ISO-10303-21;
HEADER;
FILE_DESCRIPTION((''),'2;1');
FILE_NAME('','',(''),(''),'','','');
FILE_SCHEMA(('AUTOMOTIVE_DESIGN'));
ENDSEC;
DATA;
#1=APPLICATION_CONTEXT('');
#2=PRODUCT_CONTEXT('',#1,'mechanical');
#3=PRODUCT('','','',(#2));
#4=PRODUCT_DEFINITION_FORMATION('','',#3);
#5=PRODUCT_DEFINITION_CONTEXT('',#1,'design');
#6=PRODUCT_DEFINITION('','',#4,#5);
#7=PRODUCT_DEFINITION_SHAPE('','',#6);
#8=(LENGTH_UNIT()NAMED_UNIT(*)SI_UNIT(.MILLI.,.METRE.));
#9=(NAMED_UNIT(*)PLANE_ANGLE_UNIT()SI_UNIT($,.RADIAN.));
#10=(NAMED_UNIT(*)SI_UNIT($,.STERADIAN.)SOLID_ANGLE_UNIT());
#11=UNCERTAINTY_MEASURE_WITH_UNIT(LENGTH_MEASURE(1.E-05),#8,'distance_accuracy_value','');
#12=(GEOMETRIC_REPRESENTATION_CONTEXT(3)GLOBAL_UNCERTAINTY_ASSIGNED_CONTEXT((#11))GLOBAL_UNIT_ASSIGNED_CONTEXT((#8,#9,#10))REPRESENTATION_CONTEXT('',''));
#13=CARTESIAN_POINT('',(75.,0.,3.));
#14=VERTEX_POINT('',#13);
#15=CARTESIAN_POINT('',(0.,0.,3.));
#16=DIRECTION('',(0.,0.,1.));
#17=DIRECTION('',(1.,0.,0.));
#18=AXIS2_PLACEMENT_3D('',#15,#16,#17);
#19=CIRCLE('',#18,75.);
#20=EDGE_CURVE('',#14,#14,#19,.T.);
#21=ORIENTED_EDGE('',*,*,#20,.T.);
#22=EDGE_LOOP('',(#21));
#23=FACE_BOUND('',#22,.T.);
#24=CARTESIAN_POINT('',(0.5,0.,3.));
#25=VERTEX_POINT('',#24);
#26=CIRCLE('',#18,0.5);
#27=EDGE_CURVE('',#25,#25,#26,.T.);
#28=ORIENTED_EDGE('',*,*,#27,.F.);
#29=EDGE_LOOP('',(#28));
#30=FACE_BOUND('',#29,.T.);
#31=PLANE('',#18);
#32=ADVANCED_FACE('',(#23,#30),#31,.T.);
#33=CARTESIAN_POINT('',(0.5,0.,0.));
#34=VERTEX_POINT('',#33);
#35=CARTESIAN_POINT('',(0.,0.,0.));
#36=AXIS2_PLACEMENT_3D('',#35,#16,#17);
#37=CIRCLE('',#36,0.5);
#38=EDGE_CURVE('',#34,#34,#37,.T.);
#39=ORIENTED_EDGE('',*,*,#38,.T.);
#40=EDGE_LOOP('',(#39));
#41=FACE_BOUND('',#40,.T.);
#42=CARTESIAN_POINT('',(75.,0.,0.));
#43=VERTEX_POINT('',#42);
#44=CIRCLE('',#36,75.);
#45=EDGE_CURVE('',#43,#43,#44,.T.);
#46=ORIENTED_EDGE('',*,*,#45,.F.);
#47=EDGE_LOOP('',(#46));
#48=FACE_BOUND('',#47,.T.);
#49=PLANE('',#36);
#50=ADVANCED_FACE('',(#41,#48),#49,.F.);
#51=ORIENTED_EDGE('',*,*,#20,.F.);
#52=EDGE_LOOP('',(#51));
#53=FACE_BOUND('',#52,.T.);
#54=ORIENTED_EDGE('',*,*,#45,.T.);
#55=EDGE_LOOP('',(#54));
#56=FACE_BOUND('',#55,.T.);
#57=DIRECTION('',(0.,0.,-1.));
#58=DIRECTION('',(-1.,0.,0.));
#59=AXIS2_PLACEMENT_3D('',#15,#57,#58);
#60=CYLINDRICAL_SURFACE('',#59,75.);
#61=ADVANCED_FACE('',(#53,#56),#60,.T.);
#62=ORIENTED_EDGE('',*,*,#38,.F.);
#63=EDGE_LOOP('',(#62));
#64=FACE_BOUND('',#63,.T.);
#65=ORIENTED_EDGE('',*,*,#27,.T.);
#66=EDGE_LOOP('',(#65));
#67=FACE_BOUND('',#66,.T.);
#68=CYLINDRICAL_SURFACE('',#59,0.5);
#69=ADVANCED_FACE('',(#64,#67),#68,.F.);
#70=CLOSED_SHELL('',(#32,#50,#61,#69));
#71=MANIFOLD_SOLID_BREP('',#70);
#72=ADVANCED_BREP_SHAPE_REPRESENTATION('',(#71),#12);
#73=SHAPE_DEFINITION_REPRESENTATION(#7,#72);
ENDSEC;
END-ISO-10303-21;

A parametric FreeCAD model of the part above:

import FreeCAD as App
import Part
import Sketcher
from FreeCAD import Vector
Q = App.Units.Quantity

doc = App.newDocument("Part")
params = doc.addObject("Spreadsheet::Sheet", "Params")
for row, (alias, value) in enumerate([
    ("sketch1_diameter", "150 mm"),
    ("sketch1_diameter2", "1 mm"),
    ("pad1_length", "3 mm"),
], start=1):
    params.set(f"A{row}", alias)
    params.set(f"B{row}", "=" + value)
    params.setAlias(f"B{row}", alias)

body = doc.addObject("PartDesign::Body", "Body")

# Sketch on XY plane
sketch1 = body.newObject("Sketcher::SketchObject", "Sketch")
sketch1.AttachmentSupport = (doc.getObject("XY_Plane"), [""])
sketch1.MapMode = "FlatFace"
sketch1.addGeometry(Part.Circle(Vector(0, 0, 0), Vector(0, 0, 1), 75), False)
sketch1.addGeometry(Part.Circle(Vector(0, 0, 0), Vector(0, 0, 1), 0.5), False)
sketch1.addConstraint(Sketcher.Constraint("Coincident", 0, 3, -1, 1))
sketch1.addConstraint(Sketcher.Constraint("Coincident", 1, 3, -1, 1))
sketch1.addConstraint(Sketcher.Constraint("Diameter", 0, Q("150 mm")))
sketch1.addConstraint(Sketcher.Constraint("Diameter", 1, Q("1 mm")))
sketch1.setExpression("Constraints[2]", "Params.sketch1_diameter")
sketch1.setExpression("Constraints[3]", "Params.sketch1_diameter2")
pad1 = body.newObject("PartDesign::Pad", "Pad")
pad1.Profile = sketch1
pad1.setExpression("Length", "Params.pad1_length")

doc.recompute()
